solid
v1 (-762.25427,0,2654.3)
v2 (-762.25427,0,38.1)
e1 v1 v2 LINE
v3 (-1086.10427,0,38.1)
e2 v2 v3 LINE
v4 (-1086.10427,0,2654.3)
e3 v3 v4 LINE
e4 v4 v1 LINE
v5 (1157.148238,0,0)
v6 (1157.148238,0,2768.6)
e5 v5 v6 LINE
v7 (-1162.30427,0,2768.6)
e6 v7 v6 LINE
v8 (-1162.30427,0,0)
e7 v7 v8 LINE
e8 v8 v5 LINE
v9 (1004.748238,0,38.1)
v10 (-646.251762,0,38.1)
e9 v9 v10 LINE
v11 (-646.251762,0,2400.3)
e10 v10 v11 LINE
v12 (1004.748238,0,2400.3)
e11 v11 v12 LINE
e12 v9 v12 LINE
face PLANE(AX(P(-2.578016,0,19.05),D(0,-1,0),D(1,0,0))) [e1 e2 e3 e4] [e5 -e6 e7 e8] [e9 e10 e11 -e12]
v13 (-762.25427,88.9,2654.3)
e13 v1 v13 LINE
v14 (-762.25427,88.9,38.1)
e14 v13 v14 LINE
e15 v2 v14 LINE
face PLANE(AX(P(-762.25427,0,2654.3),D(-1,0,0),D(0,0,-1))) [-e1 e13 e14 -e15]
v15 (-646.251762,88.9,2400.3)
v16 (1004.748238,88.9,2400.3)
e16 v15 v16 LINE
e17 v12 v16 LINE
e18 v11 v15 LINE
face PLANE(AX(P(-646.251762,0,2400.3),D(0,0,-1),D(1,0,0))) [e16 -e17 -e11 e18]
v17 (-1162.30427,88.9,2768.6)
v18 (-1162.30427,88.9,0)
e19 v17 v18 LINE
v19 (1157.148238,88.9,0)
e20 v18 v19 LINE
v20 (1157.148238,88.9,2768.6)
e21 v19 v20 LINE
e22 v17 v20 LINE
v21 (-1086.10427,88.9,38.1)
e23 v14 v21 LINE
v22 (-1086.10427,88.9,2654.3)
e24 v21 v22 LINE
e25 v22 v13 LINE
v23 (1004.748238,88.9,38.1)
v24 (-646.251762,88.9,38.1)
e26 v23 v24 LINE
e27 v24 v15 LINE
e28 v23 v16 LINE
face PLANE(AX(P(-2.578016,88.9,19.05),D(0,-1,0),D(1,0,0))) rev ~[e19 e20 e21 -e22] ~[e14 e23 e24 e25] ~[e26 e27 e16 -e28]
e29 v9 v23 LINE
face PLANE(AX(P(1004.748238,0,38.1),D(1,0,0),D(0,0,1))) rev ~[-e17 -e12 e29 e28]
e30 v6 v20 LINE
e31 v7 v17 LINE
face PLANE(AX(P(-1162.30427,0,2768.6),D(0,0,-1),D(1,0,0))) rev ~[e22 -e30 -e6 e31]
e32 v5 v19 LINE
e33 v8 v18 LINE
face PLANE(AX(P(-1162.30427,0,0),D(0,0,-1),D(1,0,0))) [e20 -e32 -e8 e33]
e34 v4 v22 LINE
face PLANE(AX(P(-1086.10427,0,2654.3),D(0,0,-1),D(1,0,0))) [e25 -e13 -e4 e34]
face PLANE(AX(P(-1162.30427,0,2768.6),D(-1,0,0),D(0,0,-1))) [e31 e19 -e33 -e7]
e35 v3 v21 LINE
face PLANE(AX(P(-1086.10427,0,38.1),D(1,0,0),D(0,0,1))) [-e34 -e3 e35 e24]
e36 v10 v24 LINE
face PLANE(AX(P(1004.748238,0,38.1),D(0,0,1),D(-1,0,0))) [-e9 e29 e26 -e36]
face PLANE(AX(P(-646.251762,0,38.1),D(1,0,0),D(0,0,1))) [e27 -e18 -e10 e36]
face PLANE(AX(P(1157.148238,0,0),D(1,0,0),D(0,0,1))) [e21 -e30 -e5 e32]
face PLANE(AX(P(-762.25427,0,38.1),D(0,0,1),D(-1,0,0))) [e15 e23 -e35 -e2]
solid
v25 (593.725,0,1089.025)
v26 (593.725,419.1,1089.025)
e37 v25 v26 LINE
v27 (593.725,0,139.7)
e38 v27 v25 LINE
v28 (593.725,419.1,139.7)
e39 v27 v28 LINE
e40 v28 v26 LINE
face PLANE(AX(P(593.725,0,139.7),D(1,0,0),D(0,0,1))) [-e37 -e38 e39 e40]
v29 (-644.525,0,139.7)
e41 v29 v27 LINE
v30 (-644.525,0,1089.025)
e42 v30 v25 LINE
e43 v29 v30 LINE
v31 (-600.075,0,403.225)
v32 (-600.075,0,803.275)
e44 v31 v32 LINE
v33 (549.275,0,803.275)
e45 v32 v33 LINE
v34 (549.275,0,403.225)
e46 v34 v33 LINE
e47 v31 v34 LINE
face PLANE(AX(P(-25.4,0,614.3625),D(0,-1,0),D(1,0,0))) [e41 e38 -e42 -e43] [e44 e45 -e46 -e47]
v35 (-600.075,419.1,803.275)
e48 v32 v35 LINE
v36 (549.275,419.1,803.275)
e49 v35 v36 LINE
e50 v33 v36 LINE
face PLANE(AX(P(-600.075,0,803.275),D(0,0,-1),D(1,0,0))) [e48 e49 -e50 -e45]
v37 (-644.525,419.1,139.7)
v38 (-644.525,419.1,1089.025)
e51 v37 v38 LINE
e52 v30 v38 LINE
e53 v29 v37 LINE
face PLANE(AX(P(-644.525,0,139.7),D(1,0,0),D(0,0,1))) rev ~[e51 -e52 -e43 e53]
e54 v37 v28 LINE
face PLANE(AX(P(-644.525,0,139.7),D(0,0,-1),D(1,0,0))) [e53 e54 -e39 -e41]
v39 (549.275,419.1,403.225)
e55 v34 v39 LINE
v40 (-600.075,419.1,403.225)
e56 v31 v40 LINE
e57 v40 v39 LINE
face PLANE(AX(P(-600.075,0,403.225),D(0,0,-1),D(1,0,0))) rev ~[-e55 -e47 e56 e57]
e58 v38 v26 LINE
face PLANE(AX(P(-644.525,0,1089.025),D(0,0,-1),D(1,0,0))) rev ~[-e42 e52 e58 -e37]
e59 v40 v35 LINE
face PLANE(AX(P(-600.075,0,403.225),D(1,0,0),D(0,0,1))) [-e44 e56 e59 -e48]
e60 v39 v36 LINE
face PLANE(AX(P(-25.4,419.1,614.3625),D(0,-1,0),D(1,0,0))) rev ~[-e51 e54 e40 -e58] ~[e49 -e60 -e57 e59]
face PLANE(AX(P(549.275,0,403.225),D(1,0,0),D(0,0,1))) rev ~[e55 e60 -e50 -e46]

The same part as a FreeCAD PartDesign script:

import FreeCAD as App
import Part
import Sketcher

V = App.Vector
Q = App.Units.Quantity


def add_polygon(sketch, points):
    """Adds a closed chain of lines whose ends are joined by coincident constraints."""
    first, n = sketch.GeometryCount, len(points)
    for a, b in zip(points, points[1:] + points[:1]):
        sketch.addGeometry(Part.LineSegment(App.Vector(*a, 0), App.Vector(*b, 0)), False)
    for i in range(n):
        sketch.addConstraint(Sketcher.Constraint("Coincident", first + i, 2, first + (i + 1) % n, 1))

doc = App.newDocument("Part")
body = doc.addObject("PartDesign::Body", "Body")

sketch1 = doc.addObject("Sketcher::SketchObject", "Sketch")
body.addObject(sketch1)
sketch1.AttachmentSupport = (doc.XZ_Plane, [""])
sketch1.MapMode = "FlatFace"
add_polygon(sketch1, [(-619.125, 949.325), (-619.125, 0), (619.125, 0), (619.125, 949.325)])
add_polygon(sketch1, [(574.675, 263.525), (-574.675, 263.525), (-574.675, 663.575), (574.675, 663.575)])
sketch1.addConstraint(Sketcher.Constraint("Vertical", 0))
sketch1.addConstraint(Sketcher.Constraint("Horizontal", 1))
sketch1.addConstraint(Sketcher.Constraint("Vertical", 2))
sketch1.addConstraint(Sketcher.Constraint("Horizontal", 3))
sketch1.addConstraint(Sketcher.Constraint("Horizontal", 4))
sketch1.addConstraint(Sketcher.Constraint("Vertical", 5))
sketch1.addConstraint(Sketcher.Constraint("Horizontal", 6))
sketch1.addConstraint(Sketcher.Constraint("Vertical", 7))
sketch1.addConstraint(Sketcher.Constraint("Symmetric", 0, 2, 1, 2, -1, 1))
sketch1.addConstraint(Sketcher.Constraint("DistanceY", 4, 2, 3, 2, Q("27 in")))
sketch1.addConstraint(Sketcher.Constraint("DistanceX", 4, 2, 1, 2, Q("47 in")))
sketch1.addConstraint(Sketcher.Constraint("DistanceX", 3, 2, 6, 2, Q("47 in")))
sketch1.addConstraint(Sketcher.Constraint("DistanceX", 1, 1, 1, 2, Q("48.75 in")))
sketch1.addConstraint(Sketcher.Constraint("DistanceY", 5, 1, 5, 2, Q("15.75 in")))
sketch1.addConstraint(Sketcher.Constraint("DistanceY", 0, 2, 0, 1, Q("37.375 in")))
pad1 = doc.addObject("PartDesign::Pad", "Pad")
body.addObject(pad1)
pad1.Profile = sketch1
pad1.Length = Q("16.5 in")
pad1.Reversed = True
body2 = doc.addObject("PartDesign::Body", "Body001")

sketch2 = doc.addObject("Sketcher::SketchObject", "Sketch001")
body2.addObject(sketch2)
sketch2.AttachmentSupport = (doc.getObject("XZ_Plane001"), [""])
sketch2.MapMode = "FlatFace"
add_polygon(sketch2, [(-1162.30427, 0), (1157.148238, 0), (1157.148238, 2768.6), (-1162.30427, 2768.6)])
add_polygon(sketch2, [(-1086.10427, 2654.3), (-762.25427, 2654.3), (-762.25427, 38.1), (-1086.10427, 38.1)])
add_polygon(sketch2, [(-646.251762, 2400.3), (1004.748238, 2400.3), (1004.748238, 38.1), (-646.251762, 38.1)])
sketch2.addConstraint(Sketcher.Constraint("Horizontal", 0))
sketch2.addConstraint(Sketcher.Constraint("Vertical", 1))
sketch2.addConstraint(Sketcher.Constraint("Horizontal", 2))
sketch2.addConstraint(Sketcher.Constraint("Vertical", 3))
sketch2.addConstraint(Sketcher.Constraint("Horizontal", 4))
sketch2.addConstraint(Sketcher.Constraint("Vertical", 5))
sketch2.addConstraint(Sketcher.Constraint("Horizontal", 6))
sketch2.addConstraint(Sketcher.Constraint("Vertical", 7))
sketch2.addConstraint(Sketcher.Constraint("Horizontal", 8))
sketch2.addConstraint(Sketcher.Constraint("Vertical", 9))
sketch2.addConstraint(Sketcher.Constraint("Horizontal", 10))
sketch2.addConstraint(Sketcher.Constraint("Vertical", 11))
sketch2.addConstraint(Sketcher.Constraint("PointOnObject", 0, 2, -1))
sketch2.addConstraint(Sketcher.Constraint("Horizontal", 6, 2, 9, 2))
sketch2.addConstraint(Sketcher.Constraint("DistanceX", 8, 1, 8, 2, Q("65 in")))
sketch2.addConstraint(Sketcher.Constraint("DistanceY", 1, 1, 1, 2, Q("109 in")))
sketch2.addConstraint(Sketcher.Constraint("DistanceY", 5, 2, 5, 1, Q("103 in")))
sketch2.addConstraint(Sketcher.Constraint("DistanceY", 9, 2, 9, 1, Q("93 in")))
sketch2.addConstraint(Sketcher.Constraint("DistanceX", 3, 2, 6, 2, Q("3 in")))
sketch2.addConstraint(Sketcher.Constraint("DistanceX", 8, 2, 1, 2, Q("6 in")))
sketch2.addConstraint(Sketcher.Constraint("DistanceX", 4, 1, 4, 2, Q("12.75 in")))
sketch2.addConstraint(Sketcher.Constraint("DistanceY", -1, 1, 4, 2, Q("104.5 in")))
sketch2.addConstraint(Sketcher.Constraint("DistanceX", 0, 1, 0, 2, 2319.452508))
sketch2.addConstraint(Sketcher.Constraint("DistanceX", -1, 1, 0, 2, 1157.148238))
pad2 = doc.addObject("PartDesign::Pad", "Pad001")
body2.addObject(pad2)
pad2.Profile = sketch2
pad2.Length = Q("3.5 in")
pad2.Reversed = True
body3 = doc.addObject("PartDesign::Body", "Body002")
doc.recompute()

body.Placement = App.Placement(V(-25.4, 0, 139.7), App.Rotation(V(0, 0, 1), 0))
boolean = doc.addObject("PartDesign::Boolean", "Boolean")
body3.addObject(boolean)
boolean.Type = "Fuse"
boolean.addObjects([body])

doc.recompute()
